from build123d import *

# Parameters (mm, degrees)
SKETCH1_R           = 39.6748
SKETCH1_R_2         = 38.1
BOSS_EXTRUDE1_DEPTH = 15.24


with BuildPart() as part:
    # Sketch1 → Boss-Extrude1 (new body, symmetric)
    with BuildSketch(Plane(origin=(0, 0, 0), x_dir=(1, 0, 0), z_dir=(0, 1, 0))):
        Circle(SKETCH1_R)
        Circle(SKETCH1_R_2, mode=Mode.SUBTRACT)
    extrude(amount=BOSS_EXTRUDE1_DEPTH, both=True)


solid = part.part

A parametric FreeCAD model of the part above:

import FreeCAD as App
import Part
import Sketcher
from FreeCAD import Vector
Q = App.Units.Quantity

doc = App.newDocument("Part")
params = doc.addObject("Spreadsheet::Sheet", "Params")
for row, (alias, value) in enumerate([
    ("sketch1_diameter", "3 in"),
    ("sketch1_diameter2", "3.124 in"),
    ("pad1_length", "1.2 in"),
], start=1):
    params.set(f"A{row}", alias)
    params.set(f"B{row}", "=" + value)
    params.setAlias(f"B{row}", alias)

body = doc.addObject("PartDesign::Body", "Body")

# Sketch on XZ plane
sketch1 = body.newObject("Sketcher::SketchObject", "Sketch")
sketch1.AttachmentSupport = (doc.getObject("XZ_Plane"), [""])
sketch1.MapMode = "FlatFace"
sketch1.addGeometry([
    Part.Circle(Vector(0, 0, 0), Vector(0, 0, 1), 40),
    Part.Circle(Vector(0, 0, 0), Vector(0, 0, 1), 38),
], False)
sketch1.addConstraint([
    Sketcher.Constraint("Coincident", 0, 3, -1, 1),
    Sketcher.Constraint("Coincident", 1, 3, -1, 1),
    Sketcher.Constraint("Diameter", 1, Q("3 in")),
    Sketcher.Constraint("Diameter", 0, Q("3.124 in")),
])
sketch1.setExpression("Constraints[2]", "Params.sketch1_diameter")
sketch1.setExpression("Constraints[3]", "Params.sketch1_diameter2")
pad1 = body.newObject("PartDesign::Pad", "Pad")
pad1.Profile = sketch1
pad1.setExpression("Length", "Params.pad1_length")
pad1.Midplane = True

doc.recompute()
